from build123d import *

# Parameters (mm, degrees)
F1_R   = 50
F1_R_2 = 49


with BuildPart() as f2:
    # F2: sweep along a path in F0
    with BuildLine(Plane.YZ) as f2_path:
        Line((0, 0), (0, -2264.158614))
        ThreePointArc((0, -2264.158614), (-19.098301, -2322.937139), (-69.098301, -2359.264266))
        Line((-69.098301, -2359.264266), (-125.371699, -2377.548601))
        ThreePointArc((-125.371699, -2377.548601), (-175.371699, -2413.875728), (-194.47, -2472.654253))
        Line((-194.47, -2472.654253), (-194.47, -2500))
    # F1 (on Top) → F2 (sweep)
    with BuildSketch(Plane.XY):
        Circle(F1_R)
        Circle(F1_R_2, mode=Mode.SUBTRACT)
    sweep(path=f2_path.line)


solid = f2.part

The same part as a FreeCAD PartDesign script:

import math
import FreeCAD as App
import Part
import Sketcher

V = App.Vector
Q = App.Units.Quantity

doc = App.newDocument("Part")
body = doc.addObject("PartDesign::Body", "Body")

# Sketch on XY plane
sketch1 = body.newObject("Sketcher::SketchObject", "Sketch")
sketch1.AttachmentSupport = (doc.getObject("XY_Plane"), [""])
sketch1.MapMode = "FlatFace"
sketch1.addGeometry(Part.Circle(V(0, 0, 0), V(0, 0, 1), 50), False)
sketch1.addGeometry(Part.Circle(V(0, 0, 0), V(0, 0, 1), 49), False)
sketch1.addConstraint(Sketcher.Constraint("Coincident", 0, 3, -1, 1))
sketch1.addConstraint(Sketcher.Constraint("Coincident", 1, 3, -1, 1))
sketch1.addConstraint(Sketcher.Constraint("Diameter", 0, 100.0))
sketch1.addConstraint(Sketcher.Constraint("Diameter", 1, 98.0))

# Sketch on YZ plane
sketch2 = body.newObject("Sketcher::SketchObject", "Sketch001")
sketch2.AttachmentSupport = (doc.getObject("YZ_Plane"), [""])
sketch2.MapMode = "FlatFace"
sketch2.addGeometry(Part.LineSegment(V(0, 0, 0), V(0, -2264, 0)), False)
sketch2.addGeometry(Part.ArcOfCircle(Part.Circle(V(-100, -2264, 0), V(0, 0, 1), 100), math.radians(-72), math.radians(0)), False)
sketch2.addGeometry(Part.LineSegment(V(-69, -2359, 0), V(-125, -2378, 0)), False)
sketch2.addGeometry(Part.ArcOfCircle(Part.Circle(V(-94, -2473, 0), V(0, 0, 1), 100), math.radians(108), math.radians(180)), False)
sketch2.addGeometry(Part.LineSegment(V(-194, -2473, 0), V(-194, -2500, 0)), False)
sketch2.addConstraint(Sketcher.Constraint("Tangent", 0, 2, 1, 2))
sketch2.addConstraint(Sketcher.Constraint("Tangent", 1, 1, 2, 1))
sketch2.addConstraint(Sketcher.Constraint("Tangent", 2, 2, 3, 1))
sketch2.addConstraint(Sketcher.Constraint("Tangent", 3, 2, 4, 1))
sketch2.addConstraint(Sketcher.Constraint("Vertical", 0))
sketch2.addConstraint(Sketcher.Constraint("Vertical", 4))
sketch2.addConstraint(Sketcher.Constraint("Coincident", 0, 1, -1, 1))
sketch2.addConstraint(Sketcher.Constraint("Equal", 1, 3))
sketch2.addConstraint(Sketcher.Constraint("Angle", 2, Q("-162 deg")))
sketch2.addConstraint(Sketcher.Constraint("DistanceY", 4, 2, -1, 1, 2500.0))
sketch2.addConstraint(Sketcher.Constraint("DistanceX", 3, 2, -1, 1, 194.47))
sketch2.addConstraint(Sketcher.Constraint("Radius", 1, 100.000003))
sketch2.addConstraint(Sketcher.Constraint("DistanceY", 2, 2, -1, 1, 2377.548601))
doc.recompute()

additivepipe = body.newObject("PartDesign::AdditivePipe", "AdditivePipe")
additivepipe.Profile = sketch1
additivepipe.Spine = (sketch2, ["Edge1", "Edge2", "Edge3", "Edge4", "Edge5"])

doc.recompute()
